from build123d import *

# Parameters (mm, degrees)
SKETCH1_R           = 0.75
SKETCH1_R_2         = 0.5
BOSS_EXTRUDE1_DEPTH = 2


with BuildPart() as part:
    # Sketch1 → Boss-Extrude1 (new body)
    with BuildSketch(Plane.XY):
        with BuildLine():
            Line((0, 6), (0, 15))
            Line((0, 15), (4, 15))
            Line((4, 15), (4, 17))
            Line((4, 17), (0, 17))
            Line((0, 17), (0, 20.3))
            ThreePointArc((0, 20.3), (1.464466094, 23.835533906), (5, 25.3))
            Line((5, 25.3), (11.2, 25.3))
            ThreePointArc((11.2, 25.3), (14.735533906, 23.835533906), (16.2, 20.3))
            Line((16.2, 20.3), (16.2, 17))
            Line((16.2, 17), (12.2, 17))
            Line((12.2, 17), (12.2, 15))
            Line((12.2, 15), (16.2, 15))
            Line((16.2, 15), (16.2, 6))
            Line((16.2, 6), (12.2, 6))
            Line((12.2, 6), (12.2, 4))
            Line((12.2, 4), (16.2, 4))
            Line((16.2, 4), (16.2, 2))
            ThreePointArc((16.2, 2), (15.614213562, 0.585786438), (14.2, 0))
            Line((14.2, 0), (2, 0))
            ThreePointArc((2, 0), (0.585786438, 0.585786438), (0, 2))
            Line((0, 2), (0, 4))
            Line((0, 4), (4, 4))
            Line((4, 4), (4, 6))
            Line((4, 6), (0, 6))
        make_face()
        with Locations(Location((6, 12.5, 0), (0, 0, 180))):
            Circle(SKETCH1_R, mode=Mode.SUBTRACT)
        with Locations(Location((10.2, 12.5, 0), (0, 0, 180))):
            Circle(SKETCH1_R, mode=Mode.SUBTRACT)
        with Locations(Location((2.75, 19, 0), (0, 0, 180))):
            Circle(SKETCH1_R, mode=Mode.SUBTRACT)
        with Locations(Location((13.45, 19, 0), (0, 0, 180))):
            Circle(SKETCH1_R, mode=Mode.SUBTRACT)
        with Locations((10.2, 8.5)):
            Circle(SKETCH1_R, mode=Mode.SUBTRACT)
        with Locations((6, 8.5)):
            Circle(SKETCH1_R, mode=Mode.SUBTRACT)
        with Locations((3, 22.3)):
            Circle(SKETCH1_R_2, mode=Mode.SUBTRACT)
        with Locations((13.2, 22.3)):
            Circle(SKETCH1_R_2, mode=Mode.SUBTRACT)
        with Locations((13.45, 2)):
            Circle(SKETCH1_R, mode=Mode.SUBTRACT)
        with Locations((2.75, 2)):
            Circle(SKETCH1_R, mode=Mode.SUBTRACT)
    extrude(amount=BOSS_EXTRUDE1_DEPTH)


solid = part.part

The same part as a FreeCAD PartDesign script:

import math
import FreeCAD as App
import Part
import Sketcher
from FreeCAD import Vector

doc = App.newDocument("Part")
body = doc.addObject("PartDesign::Body", "Body")

# Sketch on XY plane
sketch1 = body.newObject("Sketcher::SketchObject", "Sketch")
sketch1.AttachmentSupport = (doc.getObject("XY_Plane"), [""])
sketch1.MapMode = "FlatFace"
sketch1.addGeometry(Part.LineSegment(Vector(0, 15, 0), Vector(0, 6, 0)), False)
sketch1.addGeometry(Part.LineSegment(Vector(0, 6, 0), Vector(4, 6, 0)), False)
sketch1.addGeometry(Part.LineSegment(Vector(4, 6, 0), Vector(4, 4, 0)), False)
sketch1.addGeometry(Part.LineSegment(Vector(4, 4, 0), Vector(0, 4, 0)), False)
sketch1.addGeometry(Part.LineSegment(Vector(0, 4, 0), Vector(0, 2, 0)), False)
sketch1.addGeometry(Part.ArcOfCircle(Part.Circle(Vector(2, 2, 0), Vector(0, 0, 1), 2), math.radians(-180), math.radians(-90)), False)
sketch1.addGeometry(Part.LineSegment(Vector(2, 0, 0), Vector(14.2, 0, 0)), False)
sketch1.addGeometry(Part.ArcOfCircle(Part.Circle(Vector(14.2, 2, 0), Vector(0, 0, 1), 2), math.radians(-90), math.radians(0)), False)
sketch1.addGeometry(Part.LineSegment(Vector(16.2, 2, 0), Vector(16.2, 4, 0)), False)
sketch1.addGeometry(Part.LineSegment(Vector(16.2, 4, 0), Vector(12.2, 4, 0)), False)
sketch1.addGeometry(Part.LineSegment(Vector(12.2, 4, 0), Vector(12.2, 6, 0)), False)
sketch1.addGeometry(Part.LineSegment(Vector(12.2, 6, 0), Vector(16.2, 6, 0)), False)
sketch1.addGeometry(Part.LineSegment(Vector(16.2, 6, 0), Vector(16.2, 15, 0)), False)
sketch1.addGeometry(Part.LineSegment(Vector(16.2, 15, 0), Vector(12.2, 15, 0)), False)
sketch1.addGeometry(Part.LineSegment(Vector(12.2, 15, 0), Vector(12.2, 17, 0)), False)
sketch1.addGeometry(Part.LineSegment(Vector(12.2, 17, 0), Vector(16.2, 17, 0)), False)
sketch1.addGeometry(Part.LineSegment(Vector(16.2, 17, 0), Vector(16.2, 20.3, 0)), False)
sketch1.addGeometry(Part.ArcOfCircle(Part.Circle(Vector(11.2, 20.3, 0), Vector(0, 0, 1), 5), math.radians(0), math.radians(90)), False)
sketch1.addGeometry(Part.LineSegment(Vector(11.2, 25.3, 0), Vector(5, 25.3, 0)), False)
sketch1.addGeometry(Part.ArcOfCircle(Part.Circle(Vector(5, 20.3, 0), Vector(0, 0, 1), 5), math.radians(90), math.radians(180)), False)
sketch1.addGeometry(Part.LineSegment(Vector(0, 20.3, 0), Vector(0, 17, 0)), False)
sketch1.addGeometry(Part.LineSegment(Vector(0, 17, 0), Vector(4, 17, 0)), False)
sketch1.addGeometry(Part.LineSegment(Vector(4, 17, 0), Vector(4, 15, 0)), False)
sketch1.addGeometry(Part.LineSegment(Vector(4, 15, 0), Vector(0, 15, 0)), False)
sketch1.addGeometry(Part.Circle(Vector(13.4, 2, 0), Vector(0, 0, 1), 0.8), False)
sketch1.addGeometry(Part.Circle(Vector(10.2, 8.5, 0), Vector(0, 0, 1), 0.8), False)
sketch1.addGeometry(Part.Circle(Vector(2.8, 2, 0), Vector(0, 0, 1), 0.8), False)
sketch1.addGeometry(Part.Circle(Vector(6, 8.5, 0), Vector(0, 0, 1), 0.8), False)
sketch1.addGeometry(Part.Circle(Vector(10.2, 12.5, 0), Vector(0, 0, 1), 0.8), False)
sketch1.addGeometry(Part.Circle(Vector(13.4, 19, 0), Vector(0, 0, 1), 0.8), False)
sketch1.addGeometry(Part.Circle(Vector(13.2, 22.3, 0), Vector(0, 0, 1), 0.5), False)
sketch1.addGeometry(Part.Circle(Vector(6, 12.5, 0), Vector(0, 0, 1), 0.8), False)
sketch1.addGeometry(Part.Circle(Vector(2.8, 19, 0), Vector(0, 0, 1), 0.8), False)
sketch1.addGeometry(Part.Circle(Vector(3, 22.3, 0), Vector(0, 0, 1), 0.5), False)
sketch1.addConstraint(Sketcher.Constraint("Coincident", 0, 2, 1, 1))
sketch1.addConstraint(Sketcher.Constraint("Coincident", 1, 2, 2, 1))
sketch1.addConstraint(Sketcher.Constraint("Coincident", 2, 2, 3, 1))
sketch1.addConstraint(Sketcher.Constraint("Coincident", 3, 2, 4, 1))
sketch1.addConstraint(Sketcher.Constraint("Tangent", 4, 2, 5, 1))
sketch1.addConstraint(Sketcher.Constraint("Tangent", 5, 2, 6, 1))
sketch1.addConstraint(Sketcher.Constraint("Tangent", 6, 2, 7, 1))
sketch1.addConstraint(Sketcher.Constraint("Tangent", 7, 2, 8, 1))
sketch1.addConstraint(Sketcher.Constraint("Coincident", 8, 2, 9, 1))
sketch1.addConstraint(Sketcher.Constraint("Coincident", 9, 2, 10, 1))
sketch1.addConstraint(Sketcher.Constraint("Coincident", 10, 2, 11, 1))
sketch1.addConstraint(Sketcher.Constraint("Coincident", 11, 2, 12, 1))
sketch1.addConstraint(Sketcher.Constraint("Coincident", 12, 2, 13, 1))
sketch1.addConstraint(Sketcher.Constraint("Coincident", 13, 2, 14, 1))
sketch1.addConstraint(Sketcher.Constraint("Coincident", 14, 2, 15, 1))
sketch1.addConstraint(Sketcher.Constraint("Coincident", 15, 2, 16, 1))
sketch1.addConstraint(Sketcher.Constraint("Tangent", 16, 2, 17, 1))
sketch1.addConstraint(Sketcher.Constraint("Tangent", 17, 2, 18, 1))
sketch1.addConstraint(Sketcher.Constraint("Tangent", 18, 2, 19, 1))
sketch1.addConstraint(Sketcher.Constraint("Tangent", 19, 2, 20, 1))
sketch1.addConstraint(Sketcher.Constraint("Coincident", 20, 2, 21, 1))
sketch1.addConstraint(Sketcher.Constraint("Coincident", 21, 2, 22, 1))
sketch1.addConstraint(Sketcher.Constraint("Coincident", 22, 2, 23, 1))
sketch1.addConstraint(Sketcher.Constraint("Coincident", 23, 2, 0, 1))
sketch1.addConstraint(Sketcher.Constraint("Vertical", 0))
sketch1.addConstraint(Sketcher.Constraint("Horizontal", 1))
sketch1.addConstraint(Sketcher.Constraint("Vertical", 2))
sketch1.addConstraint(Sketcher.Constraint("Horizontal", 3))
sketch1.addConstraint(Sketcher.Constraint("Vertical", 4))
sketch1.addConstraint(Sketcher.Constraint("Horizontal", 6))
sketch1.addConstraint(Sketcher.Constraint("Vertical", 8))
sketch1.addConstraint(Sketcher.Constraint("Horizontal", 9))
sketch1.addConstraint(Sketcher.Constraint("Vertical", 10))
sketch1.addConstraint(Sketcher.Constraint("Horizontal", 11))
sketch1.addConstraint(Sketcher.Constraint("Vertical", 12))
sketch1.addConstraint(Sketcher.Constraint("Horizontal", 13))
sketch1.addConstraint(Sketcher.Constraint("Vertical", 14))
sketch1.addConstraint(Sketcher.Constraint("Horizontal", 15))
sketch1.addConstraint(Sketcher.Constraint("Vertical", 16))
sketch1.addConstraint(Sketcher.Constraint("Horizontal", 18))
sketch1.addConstraint(Sketcher.Constraint("Vertical", 20))
sketch1.addConstraint(Sketcher.Constraint("Horizontal", 21))
sketch1.addConstraint(Sketcher.Constraint("Vertical", 22))
sketch1.addConstraint(Sketcher.Constraint("Horizontal", 23))
sketch1.addConstraint(Sketcher.Constraint("Equal", 5, 7))
sketch1.addConstraint(Sketcher.Constraint("Equal", 17, 19))
sketch1.addConstraint(Sketcher.Constraint("Equal", 24, 25))
sketch1.addConstraint(Sketcher.Constraint("Equal", 25, 26))
sketch1.addConstraint(Sketcher.Constraint("Equal", 26, 27))
sketch1.addConstraint(Sketcher.Constraint("Equal", 27, 28))
sketch1.addConstraint(Sketcher.Constraint("Equal", 28, 29))
sketch1.addConstraint(Sketcher.Constraint("Equal", 29, 31))
sketch1.addConstraint(Sketcher.Constraint("Equal", 31, 32))
sketch1.addConstraint(Sketcher.Constraint("Equal", 30, 33))
sketch1.addConstraint(Sketcher.Constraint("PointOnObject", 0, 2, -2))
sketch1.addConstraint(Sketcher.Constraint("PointOnObject", 3, 2, -2))
sketch1.addConstraint(Sketcher.Constraint("PointOnObject", 5, 2, -1))
sketch1.addConstraint(Sketcher.Constraint("PointOnObject", 19, 2, -2))
sketch1.addConstraint(Sketcher.Constraint("Horizontal", 7, 3, 24, 3))
sketch1.addConstraint(Sketcher.Constraint("Horizontal", 24, 3, 26, 3))
sketch1.addConstraint(Sketcher.Constraint("Horizontal", 25, 3, 27, 3))
sketch1.addConstraint(Sketcher.Constraint("Horizontal", 28, 3, 31, 3))
sketch1.addConstraint(Sketcher.Constraint("Horizontal", 29, 3, 32, 3))
sketch1.addConstraint(Sketcher.Constraint("Horizontal", 30, 3, 33, 3))
sketch1.addConstraint(Sketcher.Constraint("Horizontal", 3, 2, 8, 2))
sketch1.addConstraint(Sketcher.Constraint("Horizontal", 1, 2, 10, 2))
sketch1.addConstraint(Sketcher.Constraint("Horizontal", 15, 2, 20, 2))
sketch1.addConstraint(Sketcher.Constraint("Horizontal", 13, 2, 22, 2))
sketch1.addConstraint(Sketcher.Constraint("Vertical", 25, 3, 28, 3))
sketch1.addConstraint(Sketcher.Constraint("Vertical", 24, 3, 29, 3))
sketch1.addConstraint(Sketcher.Constraint("Vertical", 27, 3, 31, 3))
sketch1.addConstraint(Sketcher.Constraint("Vertical", 26, 3, 32, 3))
sketch1.addConstraint(Sketcher.Constraint("Vertical", 8, 2, 11, 2))
sketch1.addConstraint(Sketcher.Constraint("Vertical", 10, 2, 13, 2))
sketch1.addConstraint(Sketcher.Constraint("Vertical", 12, 2, 15, 2))
sketch1.addConstraint(Sketcher.Constraint("Vertical", 2, 2, 21, 2))
sketch1.addConstraint(Sketcher.Constraint("Equal", 3, 9))
sketch1.addConstraint(Sketcher.Constraint("Equal", 2, 4))
sketch1.addConstraint(Sketcher.Constraint("Equal", 10, 14))
sketch1.addConstraint(Sketcher.Constraint("Diameter", 30, 1.0))
sketch1.addConstraint(Sketcher.Constraint("Radius", 5, 2.0))
sketch1.addConstraint(Sketcher.Constraint("Radius", 17, 5.0))
sketch1.addConstraint(Sketcher.Constraint("Diameter", 24, 1.5))
sketch1.addConstraint(Sketcher.Constraint("DistanceX", 1, 1, 1, 2, 4.0))
sketch1.addConstraint(Sketcher.Constraint("DistanceY", 0, 2, 0, 1, 9.0))
sketch1.addConstraint(Sketcher.Constraint("DistanceY", 2, 2, 2, 1, 2.0))
sketch1.addConstraint(Sketcher.Constraint("DistanceX", 6, 1, 6, 2, 12.2))
sketch1.addConstraint(Sketcher.Constraint("DistanceY", 16, 1, 16, 2, 3.3))
sketch1.addConstraint(Sketcher.Constraint("DistanceX", -1, 1, 27, 3, 6.0))
sketch1.addConstraint(Sketcher.Constraint("DistanceY", -1, 1, 29, 3, 19.0))
sketch1.addConstraint(Sketcher.Constraint("DistanceX", -1, 1, 33, 3, 3.0))
sketch1.addConstraint(Sketcher.Constraint("DistanceX", 25, 3, 7, 3, 4.0))
sketch1.addConstraint(Sketcher.Constraint("DistanceY", 25, 3, 28, 3, 4.0))
sketch1.addConstraint(Sketcher.Constraint("DistanceX", 17, 3, 30, 3, 2.0))
sketch1.addConstraint(Sketcher.Constraint("DistanceY", 17, 3, 30, 3, 2.0))
sketch1.addConstraint(Sketcher.Constraint("DistanceY", -1, 1, 25, 3, 8.5))
sketch1.addConstraint(Sketcher.Constraint("DistanceX", 26, 3, 24, 3, 10.7))
sketch1.addConstraint(Sketcher.Constraint("DistanceX", -1, 1, 24, 3, 13.45))
pad1 = body.newObject("PartDesign::Pad", "Pad")
pad1.Profile = sketch1
pad1.Length = 2

doc.recompute()
